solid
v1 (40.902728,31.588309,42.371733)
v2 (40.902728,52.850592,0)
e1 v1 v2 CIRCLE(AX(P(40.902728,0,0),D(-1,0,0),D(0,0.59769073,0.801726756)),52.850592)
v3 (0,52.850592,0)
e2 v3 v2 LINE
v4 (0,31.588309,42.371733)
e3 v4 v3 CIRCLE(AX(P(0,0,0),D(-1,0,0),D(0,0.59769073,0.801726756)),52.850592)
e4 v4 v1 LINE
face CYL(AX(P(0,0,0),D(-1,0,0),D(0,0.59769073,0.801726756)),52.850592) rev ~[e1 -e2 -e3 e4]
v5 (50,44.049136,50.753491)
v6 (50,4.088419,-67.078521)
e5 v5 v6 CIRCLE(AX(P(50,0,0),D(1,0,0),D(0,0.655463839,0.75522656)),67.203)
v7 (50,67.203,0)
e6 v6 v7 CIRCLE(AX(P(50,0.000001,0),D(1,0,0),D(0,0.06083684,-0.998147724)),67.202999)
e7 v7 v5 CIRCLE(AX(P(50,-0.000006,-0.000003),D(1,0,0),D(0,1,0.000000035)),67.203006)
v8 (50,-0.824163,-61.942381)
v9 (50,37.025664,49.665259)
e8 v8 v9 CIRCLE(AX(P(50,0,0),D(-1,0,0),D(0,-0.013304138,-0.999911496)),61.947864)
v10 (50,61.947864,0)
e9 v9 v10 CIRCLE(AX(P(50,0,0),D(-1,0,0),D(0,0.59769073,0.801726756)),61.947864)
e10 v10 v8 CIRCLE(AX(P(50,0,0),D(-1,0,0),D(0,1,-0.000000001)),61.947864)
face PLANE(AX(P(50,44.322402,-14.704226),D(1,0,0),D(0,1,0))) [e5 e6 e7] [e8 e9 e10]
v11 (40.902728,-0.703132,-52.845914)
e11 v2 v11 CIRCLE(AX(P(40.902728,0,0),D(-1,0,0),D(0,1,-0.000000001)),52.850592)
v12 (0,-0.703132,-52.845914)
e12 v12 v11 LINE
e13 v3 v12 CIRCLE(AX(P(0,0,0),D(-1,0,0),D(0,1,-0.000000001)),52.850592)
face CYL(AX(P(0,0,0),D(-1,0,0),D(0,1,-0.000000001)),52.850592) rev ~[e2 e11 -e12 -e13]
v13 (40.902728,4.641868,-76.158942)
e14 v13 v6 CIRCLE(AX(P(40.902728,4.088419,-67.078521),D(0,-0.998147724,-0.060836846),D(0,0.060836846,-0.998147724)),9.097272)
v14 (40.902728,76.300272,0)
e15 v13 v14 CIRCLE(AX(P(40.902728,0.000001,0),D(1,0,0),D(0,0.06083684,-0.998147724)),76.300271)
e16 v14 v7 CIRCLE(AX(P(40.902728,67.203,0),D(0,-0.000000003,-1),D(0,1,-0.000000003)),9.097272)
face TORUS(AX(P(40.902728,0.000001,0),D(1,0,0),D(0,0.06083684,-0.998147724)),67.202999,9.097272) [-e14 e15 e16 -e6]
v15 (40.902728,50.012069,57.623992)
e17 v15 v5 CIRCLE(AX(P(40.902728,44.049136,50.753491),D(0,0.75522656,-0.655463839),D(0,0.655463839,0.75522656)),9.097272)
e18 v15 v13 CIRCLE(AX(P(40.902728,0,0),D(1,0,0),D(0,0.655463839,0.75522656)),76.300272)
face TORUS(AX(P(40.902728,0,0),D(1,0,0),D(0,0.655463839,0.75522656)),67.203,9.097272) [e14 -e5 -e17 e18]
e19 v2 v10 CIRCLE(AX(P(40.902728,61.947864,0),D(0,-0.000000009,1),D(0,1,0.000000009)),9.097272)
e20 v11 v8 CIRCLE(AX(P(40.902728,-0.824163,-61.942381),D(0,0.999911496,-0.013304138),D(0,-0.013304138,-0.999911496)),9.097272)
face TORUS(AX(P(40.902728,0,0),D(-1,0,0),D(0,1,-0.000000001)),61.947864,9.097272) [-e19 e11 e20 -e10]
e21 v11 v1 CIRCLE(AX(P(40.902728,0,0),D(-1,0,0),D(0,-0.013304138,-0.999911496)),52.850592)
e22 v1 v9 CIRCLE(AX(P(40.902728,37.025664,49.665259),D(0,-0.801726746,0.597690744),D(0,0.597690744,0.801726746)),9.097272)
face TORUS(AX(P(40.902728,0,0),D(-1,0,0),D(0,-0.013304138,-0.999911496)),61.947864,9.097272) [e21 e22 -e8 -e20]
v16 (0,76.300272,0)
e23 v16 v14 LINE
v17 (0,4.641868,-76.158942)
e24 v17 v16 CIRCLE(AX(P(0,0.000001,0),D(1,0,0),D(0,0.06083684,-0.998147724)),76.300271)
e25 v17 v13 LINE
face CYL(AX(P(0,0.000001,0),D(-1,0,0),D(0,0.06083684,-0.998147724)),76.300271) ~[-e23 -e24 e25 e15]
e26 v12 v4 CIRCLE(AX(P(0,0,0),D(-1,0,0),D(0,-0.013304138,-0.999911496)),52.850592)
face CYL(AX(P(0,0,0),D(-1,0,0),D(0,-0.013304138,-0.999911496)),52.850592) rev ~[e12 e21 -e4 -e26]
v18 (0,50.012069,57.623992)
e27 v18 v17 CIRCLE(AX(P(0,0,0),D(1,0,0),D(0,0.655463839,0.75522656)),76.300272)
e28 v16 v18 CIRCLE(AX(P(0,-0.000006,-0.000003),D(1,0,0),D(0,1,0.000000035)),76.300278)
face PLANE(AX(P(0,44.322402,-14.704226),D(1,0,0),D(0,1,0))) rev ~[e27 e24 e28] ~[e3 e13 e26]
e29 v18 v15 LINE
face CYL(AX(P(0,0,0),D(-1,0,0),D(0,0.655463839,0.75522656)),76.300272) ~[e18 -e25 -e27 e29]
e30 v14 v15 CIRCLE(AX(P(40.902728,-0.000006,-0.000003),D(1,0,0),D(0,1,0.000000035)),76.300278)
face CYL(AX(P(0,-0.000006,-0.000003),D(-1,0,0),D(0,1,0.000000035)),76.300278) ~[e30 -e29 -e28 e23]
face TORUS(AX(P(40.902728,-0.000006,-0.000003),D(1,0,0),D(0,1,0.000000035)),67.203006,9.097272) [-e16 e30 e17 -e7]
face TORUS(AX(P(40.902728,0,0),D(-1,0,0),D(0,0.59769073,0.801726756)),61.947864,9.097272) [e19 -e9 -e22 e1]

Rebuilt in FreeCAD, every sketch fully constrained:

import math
import FreeCAD as App
import Part
import Sketcher

V = App.Vector
Q = App.Units.Quantity


def edges_at(feature, points):
    """Names of the edges that pass closest to the given points."""
    edges = feature.Shape.Edges
    near = lambda p: min(range(len(edges)), key=lambda i: edges[i].distToShape(Part.Vertex(*p))[0])
    return sorted({f"Edge{near(p) + 1}" for p in points})

doc = App.newDocument("Part")
body = doc.addObject("PartDesign::Body", "Body")

sketch1 = doc.addObject("Sketcher::SketchObject", "Sketch")
body.addObject(sketch1)
sketch1.AttachmentSupport = (doc.YZ_Plane, [""])
sketch1.MapMode = "FlatFace"
sketch1.addGeometry([
    Part.ArcOfCircle(Part.Circle(V(0, 0, 0), V(0, 0, 1), 76), math.radians(-87), math.radians(0)),
    Part.ArcOfCircle(Part.Circle(V(0, 0, 0), V(0, 0, 1), 76), math.radians(0), math.radians(49)),
    Part.ArcOfCircle(Part.Circle(V(0, 0, 0), V(0, 0, 1), 76), math.radians(49), math.radians(273)),
    Part.ArcOfCircle(Part.Circle(V(0, 0, 0), V(0, 0, 1), 53), math.radians(0), math.radians(53)),
    Part.ArcOfCircle(Part.Circle(V(0, 0, 0), V(0, 0, 1), 53), math.radians(-91), math.radians(0)),
    Part.ArcOfCircle(Part.Circle(V(0, 0, 0), V(0, 0, 1), 53), math.radians(53), math.radians(269)),
], False)
sketch1.addConstraint([
    Sketcher.Constraint("Tangent", 0, 2, 1, 1),
    Sketcher.Constraint("Tangent", 1, 2, 2, 1),
    Sketcher.Constraint("Tangent", 2, 2, 0, 1),
    Sketcher.Constraint("Tangent", 3, 1, 4, 2),
    Sketcher.Constraint("Tangent", 4, 1, 5, 2),
    Sketcher.Constraint("Tangent", 5, 1, 3, 2),
    Sketcher.Constraint("Coincident", 0, 3, -1, 1),
    Sketcher.Constraint("Coincident", 3, 3, -1, 1),
    Sketcher.Constraint("PointOnObject", 0, 2, -1),
    Sketcher.Constraint("PointOnObject", 3, 1, -1),
    Sketcher.Constraint("Radius", 0, Q("76.300271 mm")),
    Sketcher.Constraint("Radius", 3, Q("52.850592 mm")),
    Sketcher.Constraint("DistanceX", 4, 1, 2, 2, Q("5.345 mm")),
    Sketcher.Constraint("DistanceX", -1, 1, 1, 2, Q("50.012069 mm")),
    Sketcher.Constraint("DistanceY", 2, 2, -1, 1, Q("76.158942 mm")),
    Sketcher.Constraint("DistanceX", -1, 1, 5, 1, Q("31.588309 mm")),
])
pad1 = doc.addObject("PartDesign::Pad", "Pad")
body.addObject(pad1)
pad1.Profile = sketch1
pad1.Length = 50
doc.recompute()

fillet = doc.addObject("PartDesign::Fillet", "Fillet")
body.addObject(fillet)
fillet.Base = (pad1, edges_at(pad1, [(50, -72.258, 24.505), (50, -50.051, 16.974)]))
fillet.Radius = 9.097272

doc.recompute()
